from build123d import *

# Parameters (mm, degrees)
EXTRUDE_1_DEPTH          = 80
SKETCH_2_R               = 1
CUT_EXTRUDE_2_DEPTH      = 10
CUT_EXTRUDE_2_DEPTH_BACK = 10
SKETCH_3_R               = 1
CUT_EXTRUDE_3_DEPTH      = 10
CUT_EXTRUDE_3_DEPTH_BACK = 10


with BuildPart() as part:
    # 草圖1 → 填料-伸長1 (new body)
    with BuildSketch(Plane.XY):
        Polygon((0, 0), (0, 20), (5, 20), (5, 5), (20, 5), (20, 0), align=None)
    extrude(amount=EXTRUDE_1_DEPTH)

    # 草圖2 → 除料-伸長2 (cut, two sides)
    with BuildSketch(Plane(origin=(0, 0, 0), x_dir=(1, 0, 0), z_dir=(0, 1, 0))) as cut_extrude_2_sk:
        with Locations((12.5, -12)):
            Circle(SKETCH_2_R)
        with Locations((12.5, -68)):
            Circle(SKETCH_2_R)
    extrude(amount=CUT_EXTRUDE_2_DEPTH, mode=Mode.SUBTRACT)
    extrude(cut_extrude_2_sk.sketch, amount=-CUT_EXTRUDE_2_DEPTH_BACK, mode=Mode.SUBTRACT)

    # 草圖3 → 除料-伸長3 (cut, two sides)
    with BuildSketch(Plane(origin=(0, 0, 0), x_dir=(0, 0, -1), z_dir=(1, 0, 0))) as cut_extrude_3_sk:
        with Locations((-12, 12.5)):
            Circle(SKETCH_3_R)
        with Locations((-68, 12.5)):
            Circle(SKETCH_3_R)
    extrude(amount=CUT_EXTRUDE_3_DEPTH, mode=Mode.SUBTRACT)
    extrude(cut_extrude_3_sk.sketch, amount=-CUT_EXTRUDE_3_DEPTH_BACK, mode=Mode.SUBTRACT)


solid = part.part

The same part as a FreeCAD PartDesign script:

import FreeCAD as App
import Part
import Sketcher

V = App.Vector


def add_polygon(sketch, points):
    """Adds a closed chain of lines whose ends are joined by coincident constraints."""
    first, n = sketch.GeometryCount, len(points)
    for a, b in zip(points, points[1:] + points[:1]):
        sketch.addGeometry(Part.LineSegment(App.Vector(*a, 0), App.Vector(*b, 0)), False)
    for i in range(n):
        sketch.addConstraint(Sketcher.Constraint("Coincident", first + i, 2, first + (i + 1) % n, 1))

doc = App.newDocument("Part")
body = doc.addObject("PartDesign::Body", "Body")

sketch1 = body.newObject("Sketcher::SketchObject", "Sketch")
sketch1.AttachmentSupport = (doc.getObject("XY_Plane"), [""])
sketch1.MapMode = "FlatFace"
add_polygon(sketch1, [(0, 20), (0, 0), (20, 0), (20, 5), (5, 5), (5, 20)])
sketch1.addConstraint([
    Sketcher.Constraint("Vertical", 0),
    Sketcher.Constraint("Horizontal", 1),
    Sketcher.Constraint("Vertical", 2),
    Sketcher.Constraint("Horizontal", 3),
    Sketcher.Constraint("Vertical", 4),
    Sketcher.Constraint("Horizontal", 5),
    Sketcher.Constraint("Coincident", 0, 2, -1, 1),
    Sketcher.Constraint("Equal", 1, 0),
    Sketcher.Constraint("Equal", 5, 2),
    Sketcher.Constraint("DistanceX", 1, 1, 1, 2, 20.0),
    Sketcher.Constraint("DistanceX", 3, 2, 3, 1, 15.0),
])
pad1 = body.newObject("PartDesign::Pad", "Pad")
pad1.Profile = sketch1
pad1.Length = 80

sketch2 = body.newObject("Sketcher::SketchObject", "Sketch001")
sketch2.AttachmentSupport = (doc.getObject("XZ_Plane"), [""])
sketch2.MapMode = "FlatFace"
sketch2.addGeometry([
    Part.Circle(V(12.5, 12, 0), V(0, 0, 1), 1),
    Part.Circle(V(12.5, 68, 0), V(0, 0, 1), 1),
], False)
sketch2.addConstraint([
    Sketcher.Constraint("Equal", 0, 1),
    Sketcher.Constraint("Vertical", 0, 3, 1, 3),
    Sketcher.Constraint("Diameter", 0, 2.0),
    Sketcher.Constraint("DistanceY", -1, 1, 0, 3, 12.0),
    Sketcher.Constraint("DistanceY", -1, 1, 1, 3, 68.0),
    Sketcher.Constraint("DistanceX", -1, 1, 0, 3, 12.5),
])
pocket1 = body.newObject("PartDesign::Pocket", "Pocket")
pocket1.Profile = sketch2
pocket1.Type = "ThroughAll"
pocket1.Midplane = True

sketch3 = body.newObject("Sketcher::SketchObject", "Sketch002")
sketch3.AttachmentSupport = (doc.getObject("YZ_Plane"), [""])
sketch3.MapMode = "FlatFace"
sketch3.addGeometry([
    Part.Circle(V(12.5, 12, 0), V(0, 0, 1), 1),
    Part.Circle(V(12.5, 68, 0), V(0, 0, 1), 1),
], False)
sketch3.addConstraint([
    Sketcher.Constraint("Equal", 0, 1),
    Sketcher.Constraint("Vertical", 0, 3, 1, 3),
    Sketcher.Constraint("Diameter", 0, 2.0),
    Sketcher.Constraint("DistanceY", -1, 1, 0, 3, 12.0),
    Sketcher.Constraint("DistanceY", -1, 1, 1, 3, 68.0),
    Sketcher.Constraint("DistanceX", -1, 1, 0, 3, 12.5),
])
pocket2 = body.newObject("PartDesign::Pocket", "Pocket001")
pocket2.Profile = sketch3
pocket2.Type = "ThroughAll"
pocket2.Midplane = True

doc.recompute()
